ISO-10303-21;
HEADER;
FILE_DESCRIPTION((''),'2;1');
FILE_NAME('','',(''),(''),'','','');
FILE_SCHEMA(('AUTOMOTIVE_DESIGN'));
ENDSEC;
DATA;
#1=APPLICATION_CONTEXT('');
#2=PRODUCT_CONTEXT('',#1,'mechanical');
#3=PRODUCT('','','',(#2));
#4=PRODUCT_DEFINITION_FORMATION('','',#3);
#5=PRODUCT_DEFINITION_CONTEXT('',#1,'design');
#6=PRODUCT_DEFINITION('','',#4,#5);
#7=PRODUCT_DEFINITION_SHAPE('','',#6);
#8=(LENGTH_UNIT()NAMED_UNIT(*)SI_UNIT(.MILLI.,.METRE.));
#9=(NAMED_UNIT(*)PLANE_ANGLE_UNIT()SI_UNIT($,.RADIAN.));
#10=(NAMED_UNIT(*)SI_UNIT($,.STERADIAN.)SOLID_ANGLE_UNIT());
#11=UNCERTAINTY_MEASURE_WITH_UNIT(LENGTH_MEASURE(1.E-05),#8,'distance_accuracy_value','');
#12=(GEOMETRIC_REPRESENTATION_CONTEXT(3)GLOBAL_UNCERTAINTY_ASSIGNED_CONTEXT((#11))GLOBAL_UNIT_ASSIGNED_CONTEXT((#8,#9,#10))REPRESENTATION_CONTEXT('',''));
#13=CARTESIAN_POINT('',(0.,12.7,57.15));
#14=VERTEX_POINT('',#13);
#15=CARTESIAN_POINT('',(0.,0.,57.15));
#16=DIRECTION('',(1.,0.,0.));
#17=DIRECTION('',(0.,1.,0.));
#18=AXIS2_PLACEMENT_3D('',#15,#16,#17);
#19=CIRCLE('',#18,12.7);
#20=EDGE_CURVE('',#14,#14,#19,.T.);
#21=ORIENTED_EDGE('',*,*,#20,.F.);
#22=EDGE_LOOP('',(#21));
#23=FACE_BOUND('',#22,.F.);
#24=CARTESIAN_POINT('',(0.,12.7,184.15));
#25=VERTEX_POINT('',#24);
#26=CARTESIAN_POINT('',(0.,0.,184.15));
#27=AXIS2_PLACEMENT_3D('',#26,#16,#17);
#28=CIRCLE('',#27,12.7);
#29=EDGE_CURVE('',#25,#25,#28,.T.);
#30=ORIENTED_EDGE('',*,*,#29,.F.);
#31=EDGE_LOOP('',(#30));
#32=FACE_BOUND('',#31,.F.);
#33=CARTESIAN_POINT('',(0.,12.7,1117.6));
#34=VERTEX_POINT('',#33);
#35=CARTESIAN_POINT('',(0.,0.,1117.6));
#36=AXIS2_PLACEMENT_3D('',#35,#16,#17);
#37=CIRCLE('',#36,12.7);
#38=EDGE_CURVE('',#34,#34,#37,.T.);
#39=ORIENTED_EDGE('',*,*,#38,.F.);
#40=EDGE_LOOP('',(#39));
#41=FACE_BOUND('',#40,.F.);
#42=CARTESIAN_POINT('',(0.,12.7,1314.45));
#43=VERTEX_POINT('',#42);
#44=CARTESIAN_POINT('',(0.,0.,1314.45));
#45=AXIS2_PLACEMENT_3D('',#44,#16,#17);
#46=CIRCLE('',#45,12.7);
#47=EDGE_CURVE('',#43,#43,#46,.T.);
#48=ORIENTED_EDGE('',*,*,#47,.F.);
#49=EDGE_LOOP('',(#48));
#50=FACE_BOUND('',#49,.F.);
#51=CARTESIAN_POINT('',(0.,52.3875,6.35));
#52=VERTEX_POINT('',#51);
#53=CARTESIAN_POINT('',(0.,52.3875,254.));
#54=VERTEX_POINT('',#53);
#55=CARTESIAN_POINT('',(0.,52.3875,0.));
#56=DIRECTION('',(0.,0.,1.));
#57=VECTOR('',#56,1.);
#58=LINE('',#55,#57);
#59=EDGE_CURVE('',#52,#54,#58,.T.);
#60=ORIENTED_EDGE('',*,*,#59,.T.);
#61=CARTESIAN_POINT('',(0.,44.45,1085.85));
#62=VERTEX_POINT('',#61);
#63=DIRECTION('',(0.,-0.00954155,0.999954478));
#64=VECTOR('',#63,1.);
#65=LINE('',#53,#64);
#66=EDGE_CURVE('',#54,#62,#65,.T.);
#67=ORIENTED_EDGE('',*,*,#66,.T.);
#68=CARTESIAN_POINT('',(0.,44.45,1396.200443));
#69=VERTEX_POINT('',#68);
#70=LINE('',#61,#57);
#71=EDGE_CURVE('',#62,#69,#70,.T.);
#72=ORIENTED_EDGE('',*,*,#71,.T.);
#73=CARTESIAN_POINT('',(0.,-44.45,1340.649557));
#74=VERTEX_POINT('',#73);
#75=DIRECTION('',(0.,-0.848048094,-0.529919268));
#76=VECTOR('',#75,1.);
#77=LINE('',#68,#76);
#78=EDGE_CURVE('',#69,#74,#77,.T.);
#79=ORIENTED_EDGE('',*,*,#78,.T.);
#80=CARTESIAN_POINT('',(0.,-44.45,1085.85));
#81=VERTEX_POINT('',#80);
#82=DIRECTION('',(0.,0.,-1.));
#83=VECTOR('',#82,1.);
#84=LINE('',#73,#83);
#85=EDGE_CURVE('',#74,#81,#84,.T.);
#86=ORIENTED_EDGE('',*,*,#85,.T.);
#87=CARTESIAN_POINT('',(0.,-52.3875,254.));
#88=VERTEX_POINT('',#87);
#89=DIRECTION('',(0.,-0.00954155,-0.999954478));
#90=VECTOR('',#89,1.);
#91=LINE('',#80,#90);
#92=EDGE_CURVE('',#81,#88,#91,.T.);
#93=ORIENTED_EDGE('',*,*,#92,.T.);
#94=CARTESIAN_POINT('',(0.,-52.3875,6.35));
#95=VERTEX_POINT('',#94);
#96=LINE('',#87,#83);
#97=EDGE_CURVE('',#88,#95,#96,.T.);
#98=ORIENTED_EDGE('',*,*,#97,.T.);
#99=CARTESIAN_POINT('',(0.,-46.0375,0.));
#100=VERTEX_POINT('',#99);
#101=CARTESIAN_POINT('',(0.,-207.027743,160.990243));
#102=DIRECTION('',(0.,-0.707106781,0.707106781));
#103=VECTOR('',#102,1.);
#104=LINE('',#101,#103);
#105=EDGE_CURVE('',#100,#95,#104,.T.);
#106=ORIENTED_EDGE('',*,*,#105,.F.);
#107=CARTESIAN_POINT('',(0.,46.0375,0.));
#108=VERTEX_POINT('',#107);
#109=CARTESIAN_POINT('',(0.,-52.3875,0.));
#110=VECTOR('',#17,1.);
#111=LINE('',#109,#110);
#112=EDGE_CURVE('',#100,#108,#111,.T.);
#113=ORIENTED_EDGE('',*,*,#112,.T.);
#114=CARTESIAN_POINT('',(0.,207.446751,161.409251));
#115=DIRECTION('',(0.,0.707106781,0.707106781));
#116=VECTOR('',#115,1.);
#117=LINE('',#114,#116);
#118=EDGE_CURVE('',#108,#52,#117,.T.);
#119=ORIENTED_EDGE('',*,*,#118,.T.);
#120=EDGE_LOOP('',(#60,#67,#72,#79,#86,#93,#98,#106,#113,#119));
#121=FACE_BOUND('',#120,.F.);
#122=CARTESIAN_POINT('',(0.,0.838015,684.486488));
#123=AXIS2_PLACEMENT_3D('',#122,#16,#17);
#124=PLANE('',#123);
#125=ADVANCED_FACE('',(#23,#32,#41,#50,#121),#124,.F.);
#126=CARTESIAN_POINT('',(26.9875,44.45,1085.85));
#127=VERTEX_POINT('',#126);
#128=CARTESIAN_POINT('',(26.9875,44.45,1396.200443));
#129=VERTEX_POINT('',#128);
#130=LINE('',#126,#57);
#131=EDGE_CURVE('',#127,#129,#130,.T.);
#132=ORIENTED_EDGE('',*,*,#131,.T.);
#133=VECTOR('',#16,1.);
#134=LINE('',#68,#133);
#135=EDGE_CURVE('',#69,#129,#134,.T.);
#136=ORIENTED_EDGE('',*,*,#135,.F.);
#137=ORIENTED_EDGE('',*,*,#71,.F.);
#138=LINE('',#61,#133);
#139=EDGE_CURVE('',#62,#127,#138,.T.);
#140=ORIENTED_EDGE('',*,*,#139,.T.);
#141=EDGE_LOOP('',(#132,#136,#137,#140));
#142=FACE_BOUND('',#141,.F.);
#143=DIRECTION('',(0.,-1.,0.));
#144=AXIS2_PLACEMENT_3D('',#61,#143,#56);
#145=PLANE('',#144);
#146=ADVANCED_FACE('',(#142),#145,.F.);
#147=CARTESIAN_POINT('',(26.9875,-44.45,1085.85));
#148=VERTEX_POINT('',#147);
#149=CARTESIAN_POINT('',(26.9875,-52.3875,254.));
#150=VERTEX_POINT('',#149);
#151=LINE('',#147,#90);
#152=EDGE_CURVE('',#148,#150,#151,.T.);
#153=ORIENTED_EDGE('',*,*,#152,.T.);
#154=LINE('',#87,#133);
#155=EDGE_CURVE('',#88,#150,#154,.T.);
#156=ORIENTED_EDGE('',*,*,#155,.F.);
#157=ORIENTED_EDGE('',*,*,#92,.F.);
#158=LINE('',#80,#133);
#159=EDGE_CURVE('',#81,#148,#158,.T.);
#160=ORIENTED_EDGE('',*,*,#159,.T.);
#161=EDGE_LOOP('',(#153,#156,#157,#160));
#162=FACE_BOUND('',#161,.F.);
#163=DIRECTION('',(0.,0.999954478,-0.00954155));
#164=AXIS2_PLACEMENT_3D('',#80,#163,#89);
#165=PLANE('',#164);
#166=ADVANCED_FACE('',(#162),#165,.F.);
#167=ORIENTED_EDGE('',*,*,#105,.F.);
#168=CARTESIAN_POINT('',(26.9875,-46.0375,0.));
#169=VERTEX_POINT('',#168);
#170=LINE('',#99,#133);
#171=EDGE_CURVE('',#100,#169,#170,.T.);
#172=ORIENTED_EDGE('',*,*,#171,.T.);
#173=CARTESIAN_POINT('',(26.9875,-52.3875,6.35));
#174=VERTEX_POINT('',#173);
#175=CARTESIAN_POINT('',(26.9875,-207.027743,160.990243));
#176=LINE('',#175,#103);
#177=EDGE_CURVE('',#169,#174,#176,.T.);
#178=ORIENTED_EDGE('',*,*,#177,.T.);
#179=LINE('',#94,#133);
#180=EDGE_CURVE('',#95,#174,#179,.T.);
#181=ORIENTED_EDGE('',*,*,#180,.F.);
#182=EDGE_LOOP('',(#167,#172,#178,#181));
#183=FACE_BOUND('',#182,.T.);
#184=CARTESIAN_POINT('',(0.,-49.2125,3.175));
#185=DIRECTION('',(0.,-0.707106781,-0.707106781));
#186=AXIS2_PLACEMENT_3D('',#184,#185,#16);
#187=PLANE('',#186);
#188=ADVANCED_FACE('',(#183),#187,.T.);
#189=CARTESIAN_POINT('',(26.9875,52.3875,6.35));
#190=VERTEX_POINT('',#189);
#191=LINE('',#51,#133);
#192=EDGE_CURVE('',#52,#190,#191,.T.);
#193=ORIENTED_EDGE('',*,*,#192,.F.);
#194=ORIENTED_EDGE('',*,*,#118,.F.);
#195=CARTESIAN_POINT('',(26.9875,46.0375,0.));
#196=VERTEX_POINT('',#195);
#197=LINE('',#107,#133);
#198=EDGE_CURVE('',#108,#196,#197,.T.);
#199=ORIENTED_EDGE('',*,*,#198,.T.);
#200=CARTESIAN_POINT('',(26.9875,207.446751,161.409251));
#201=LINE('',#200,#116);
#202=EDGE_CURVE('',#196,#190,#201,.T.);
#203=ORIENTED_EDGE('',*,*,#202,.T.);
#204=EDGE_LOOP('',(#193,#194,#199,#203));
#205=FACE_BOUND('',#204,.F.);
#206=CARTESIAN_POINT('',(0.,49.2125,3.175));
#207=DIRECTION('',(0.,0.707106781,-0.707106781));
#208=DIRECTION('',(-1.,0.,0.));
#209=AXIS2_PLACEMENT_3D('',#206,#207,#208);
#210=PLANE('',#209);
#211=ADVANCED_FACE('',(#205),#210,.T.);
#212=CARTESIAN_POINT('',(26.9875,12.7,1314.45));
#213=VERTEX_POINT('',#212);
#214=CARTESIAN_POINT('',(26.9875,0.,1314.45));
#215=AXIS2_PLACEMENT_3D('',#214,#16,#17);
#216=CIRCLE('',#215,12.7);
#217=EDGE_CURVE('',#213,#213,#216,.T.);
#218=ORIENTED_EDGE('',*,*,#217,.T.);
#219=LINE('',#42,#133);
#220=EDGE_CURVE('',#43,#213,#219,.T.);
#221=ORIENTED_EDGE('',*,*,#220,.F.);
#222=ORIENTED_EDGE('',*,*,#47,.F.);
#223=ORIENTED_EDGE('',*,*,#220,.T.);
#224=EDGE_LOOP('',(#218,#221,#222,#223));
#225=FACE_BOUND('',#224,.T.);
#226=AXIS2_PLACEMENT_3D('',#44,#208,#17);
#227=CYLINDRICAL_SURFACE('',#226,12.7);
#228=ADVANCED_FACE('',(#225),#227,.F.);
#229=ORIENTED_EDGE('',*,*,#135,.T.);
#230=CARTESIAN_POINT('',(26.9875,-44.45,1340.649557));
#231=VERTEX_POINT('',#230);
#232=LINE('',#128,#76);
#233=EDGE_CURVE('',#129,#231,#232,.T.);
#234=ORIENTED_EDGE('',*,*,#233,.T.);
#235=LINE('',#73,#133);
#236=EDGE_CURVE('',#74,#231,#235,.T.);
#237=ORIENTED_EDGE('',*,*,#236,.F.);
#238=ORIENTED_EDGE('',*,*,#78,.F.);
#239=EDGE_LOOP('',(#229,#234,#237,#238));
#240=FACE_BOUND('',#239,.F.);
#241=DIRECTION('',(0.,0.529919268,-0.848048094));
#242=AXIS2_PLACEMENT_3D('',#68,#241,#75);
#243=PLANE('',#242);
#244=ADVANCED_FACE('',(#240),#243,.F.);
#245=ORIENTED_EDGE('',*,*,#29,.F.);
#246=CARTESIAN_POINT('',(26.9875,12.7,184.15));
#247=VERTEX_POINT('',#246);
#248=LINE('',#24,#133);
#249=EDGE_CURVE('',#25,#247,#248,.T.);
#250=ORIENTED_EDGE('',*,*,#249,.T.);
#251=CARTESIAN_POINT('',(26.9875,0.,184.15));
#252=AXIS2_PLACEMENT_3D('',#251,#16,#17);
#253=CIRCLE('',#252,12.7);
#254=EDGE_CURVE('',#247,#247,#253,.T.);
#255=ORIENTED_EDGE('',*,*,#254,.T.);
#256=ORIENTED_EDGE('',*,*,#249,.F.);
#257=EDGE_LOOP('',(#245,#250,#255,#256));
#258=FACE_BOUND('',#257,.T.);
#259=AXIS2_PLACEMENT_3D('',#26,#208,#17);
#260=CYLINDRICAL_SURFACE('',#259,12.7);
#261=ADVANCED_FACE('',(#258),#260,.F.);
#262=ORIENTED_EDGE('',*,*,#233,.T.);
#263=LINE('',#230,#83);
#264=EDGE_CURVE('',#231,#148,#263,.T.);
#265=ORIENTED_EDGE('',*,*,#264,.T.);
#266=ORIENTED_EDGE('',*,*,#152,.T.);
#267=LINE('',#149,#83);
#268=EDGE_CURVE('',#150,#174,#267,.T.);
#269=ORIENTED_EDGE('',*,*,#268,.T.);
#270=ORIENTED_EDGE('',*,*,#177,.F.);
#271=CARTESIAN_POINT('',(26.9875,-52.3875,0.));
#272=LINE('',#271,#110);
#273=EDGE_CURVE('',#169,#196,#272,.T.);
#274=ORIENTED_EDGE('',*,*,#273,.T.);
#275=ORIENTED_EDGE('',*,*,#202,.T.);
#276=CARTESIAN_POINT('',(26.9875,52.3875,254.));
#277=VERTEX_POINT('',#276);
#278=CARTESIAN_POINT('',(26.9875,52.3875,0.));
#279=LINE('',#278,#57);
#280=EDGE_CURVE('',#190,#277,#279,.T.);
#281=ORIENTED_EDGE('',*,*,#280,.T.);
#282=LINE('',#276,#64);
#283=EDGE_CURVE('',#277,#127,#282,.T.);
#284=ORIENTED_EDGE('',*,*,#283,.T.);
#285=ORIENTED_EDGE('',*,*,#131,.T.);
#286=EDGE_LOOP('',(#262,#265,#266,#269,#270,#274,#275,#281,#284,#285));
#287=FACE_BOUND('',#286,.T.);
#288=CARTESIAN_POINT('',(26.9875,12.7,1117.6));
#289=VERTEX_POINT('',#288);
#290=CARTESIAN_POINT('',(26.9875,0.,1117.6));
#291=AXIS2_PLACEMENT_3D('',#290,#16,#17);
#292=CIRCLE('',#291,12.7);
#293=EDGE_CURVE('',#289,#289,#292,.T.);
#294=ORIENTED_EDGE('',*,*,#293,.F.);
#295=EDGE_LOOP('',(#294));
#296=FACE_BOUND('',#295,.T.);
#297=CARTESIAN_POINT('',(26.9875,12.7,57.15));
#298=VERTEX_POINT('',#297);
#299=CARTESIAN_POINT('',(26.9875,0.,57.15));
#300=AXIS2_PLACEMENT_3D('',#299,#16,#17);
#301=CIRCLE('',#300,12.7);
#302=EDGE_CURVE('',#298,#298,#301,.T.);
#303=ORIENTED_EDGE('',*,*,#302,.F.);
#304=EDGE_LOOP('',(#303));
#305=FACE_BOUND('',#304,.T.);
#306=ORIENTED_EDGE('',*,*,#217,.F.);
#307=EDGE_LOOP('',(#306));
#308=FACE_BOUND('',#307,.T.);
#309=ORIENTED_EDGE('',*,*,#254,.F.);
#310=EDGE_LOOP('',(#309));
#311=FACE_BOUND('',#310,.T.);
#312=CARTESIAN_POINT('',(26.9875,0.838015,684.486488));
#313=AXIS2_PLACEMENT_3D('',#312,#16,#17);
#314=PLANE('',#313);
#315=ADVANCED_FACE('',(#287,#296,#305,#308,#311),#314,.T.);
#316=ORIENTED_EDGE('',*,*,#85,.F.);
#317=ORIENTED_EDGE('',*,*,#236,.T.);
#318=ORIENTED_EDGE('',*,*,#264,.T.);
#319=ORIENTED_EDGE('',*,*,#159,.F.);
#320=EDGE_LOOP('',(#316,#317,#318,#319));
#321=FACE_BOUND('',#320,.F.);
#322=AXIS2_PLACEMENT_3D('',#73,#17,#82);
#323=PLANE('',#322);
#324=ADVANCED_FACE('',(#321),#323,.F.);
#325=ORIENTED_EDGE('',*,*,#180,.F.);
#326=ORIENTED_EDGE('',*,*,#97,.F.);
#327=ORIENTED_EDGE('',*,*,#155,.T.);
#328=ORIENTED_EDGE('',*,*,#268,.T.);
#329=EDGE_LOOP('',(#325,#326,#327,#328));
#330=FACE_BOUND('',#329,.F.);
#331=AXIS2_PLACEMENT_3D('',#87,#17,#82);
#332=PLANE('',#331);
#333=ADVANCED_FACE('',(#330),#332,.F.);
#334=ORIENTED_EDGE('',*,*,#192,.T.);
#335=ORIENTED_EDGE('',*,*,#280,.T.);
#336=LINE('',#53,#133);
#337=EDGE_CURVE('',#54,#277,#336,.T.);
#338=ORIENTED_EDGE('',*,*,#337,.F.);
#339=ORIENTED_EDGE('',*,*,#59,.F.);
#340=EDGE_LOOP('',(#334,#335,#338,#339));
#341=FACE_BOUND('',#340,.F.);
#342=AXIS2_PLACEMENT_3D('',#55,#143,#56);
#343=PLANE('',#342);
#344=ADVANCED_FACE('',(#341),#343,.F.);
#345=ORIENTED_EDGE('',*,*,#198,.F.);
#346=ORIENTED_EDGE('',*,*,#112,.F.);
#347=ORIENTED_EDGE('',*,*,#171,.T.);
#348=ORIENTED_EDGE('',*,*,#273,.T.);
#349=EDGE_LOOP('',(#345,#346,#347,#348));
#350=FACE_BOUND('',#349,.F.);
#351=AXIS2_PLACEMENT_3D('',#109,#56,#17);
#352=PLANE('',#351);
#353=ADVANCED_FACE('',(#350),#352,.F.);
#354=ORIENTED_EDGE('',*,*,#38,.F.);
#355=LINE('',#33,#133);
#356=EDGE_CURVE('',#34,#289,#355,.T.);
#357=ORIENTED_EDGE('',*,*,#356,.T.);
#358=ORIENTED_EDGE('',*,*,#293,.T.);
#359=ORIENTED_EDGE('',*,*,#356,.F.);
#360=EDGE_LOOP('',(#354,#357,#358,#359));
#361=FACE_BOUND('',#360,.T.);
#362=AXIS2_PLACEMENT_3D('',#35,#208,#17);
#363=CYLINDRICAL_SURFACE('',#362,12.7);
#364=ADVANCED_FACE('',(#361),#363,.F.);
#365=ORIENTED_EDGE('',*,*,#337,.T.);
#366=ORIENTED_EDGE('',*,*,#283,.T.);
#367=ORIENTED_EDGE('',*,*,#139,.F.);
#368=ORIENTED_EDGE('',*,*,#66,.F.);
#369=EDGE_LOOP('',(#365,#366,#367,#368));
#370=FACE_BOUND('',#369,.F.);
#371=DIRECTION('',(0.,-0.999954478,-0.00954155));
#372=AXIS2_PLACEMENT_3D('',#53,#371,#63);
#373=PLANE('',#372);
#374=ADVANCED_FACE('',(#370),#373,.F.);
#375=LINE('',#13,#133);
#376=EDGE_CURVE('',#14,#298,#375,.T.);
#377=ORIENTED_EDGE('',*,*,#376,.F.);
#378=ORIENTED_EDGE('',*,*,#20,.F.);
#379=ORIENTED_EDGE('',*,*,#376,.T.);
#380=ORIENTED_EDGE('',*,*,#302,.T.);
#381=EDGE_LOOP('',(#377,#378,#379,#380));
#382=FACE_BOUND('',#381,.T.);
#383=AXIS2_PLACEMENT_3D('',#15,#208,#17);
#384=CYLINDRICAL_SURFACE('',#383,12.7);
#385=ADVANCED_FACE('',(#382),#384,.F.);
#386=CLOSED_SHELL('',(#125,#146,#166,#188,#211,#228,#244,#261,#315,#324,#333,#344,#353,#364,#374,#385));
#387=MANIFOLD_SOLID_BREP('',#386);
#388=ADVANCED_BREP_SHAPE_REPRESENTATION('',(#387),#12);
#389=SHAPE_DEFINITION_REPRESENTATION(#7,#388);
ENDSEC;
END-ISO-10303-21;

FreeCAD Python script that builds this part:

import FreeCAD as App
import Part
import Sketcher
Q = App.Units.Quantity


def edges_at(feature, points):
    """Names of the edges that pass closest to the given points."""
    edges = feature.Shape.Edges
    near = lambda p: min(range(len(edges)), key=lambda i: edges[i].distToShape(Part.Vertex(*p))[0])
    return sorted({f"Edge{near(p) + 1}" for p in points})

doc = App.newDocument("Part")
params = doc.addObject("Spreadsheet::Sheet", "Params")
for row, (alias, value) in enumerate([
    ("sketch1_diameter", "1 in"),
    ("sketch1_height", "10 in"),
    ("sketch1_width", "4.125 in"),
    ("pad1_length", "1.0625 in"),
    ("chamfer_size", "0.25 in"),
], start=1):
    params.set(f"A{row}", alias)
    params.set(f"B{row}", "=" + value)
    params.setAlias(f"B{row}", alias)

body = doc.addObject("PartDesign::Body", "Body")

sketch1 = body.newObject("Sketcher::SketchObject", "Sketch")
sketch1.AttachmentSupport = (doc.getObject("YZ_Plane"), [""])
sketch1.MapMode = "FlatFace"
sketch1.addGeometry([
    Part.LineSegment(App.Vector(-52.3875, 0, 0), App.Vector(52.3875, 0, 0)),
    Part.LineSegment(App.Vector(52.3875, 0, 0), App.Vector(52.3875, 254, 0)),
    Part.LineSegment(App.Vector(52.3875, 254, 0), App.Vector(44.45, 1085.85, 0)),
    Part.LineSegment(App.Vector(44.45, 1085.85, 0), App.Vector(44.45, 1396.200443, 0)),
    Part.LineSegment(App.Vector(44.45, 1396.200443, 0), App.Vector(-44.45, 1340.649557, 0)),
    Part.LineSegment(App.Vector(-44.45, 1340.649557, 0), App.Vector(-44.45, 1085.85, 0)),
    Part.LineSegment(App.Vector(-44.45, 1085.85, 0), App.Vector(-52.3875, 254, 0)),
    Part.LineSegment(App.Vector(-52.3875, 254, 0), App.Vector(-52.3875, 0, 0)),
    Part.Circle(App.Vector(0, 57.15, 0), App.Vector(0, 0, 1), 12.7),
    Part.Circle(App.Vector(0, 184.15, 0), App.Vector(0, 0, 1), 12.7),
    Part.Circle(App.Vector(0, 1117.6, 0), App.Vector(0, 0, 1), 12.7),
    Part.Circle(App.Vector(0, 1314.45, 0), App.Vector(0, 0, 1), 12.7),
], False)
sketch1.addConstraint([
    Sketcher.Constraint("Coincident", 0, 2, 1, 1),
    Sketcher.Constraint("Coincident", 1, 2, 2, 1),
    Sketcher.Constraint("Coincident", 2, 2, 3, 1),
    Sketcher.Constraint("Coincident", 3, 2, 4, 1),
    Sketcher.Constraint("Coincident", 4, 2, 5, 1),
    Sketcher.Constraint("Coincident", 5, 2, 6, 1),
    Sketcher.Constraint("Coincident", 6, 2, 7, 1),
    Sketcher.Constraint("Coincident", 7, 2, 0, 1),
    Sketcher.Constraint("Horizontal", 0),
    Sketcher.Constraint("Vertical", 1),
    Sketcher.Constraint("Vertical", 3),
    Sketcher.Constraint("Vertical", 5),
    Sketcher.Constraint("Vertical", 7),
    Sketcher.Constraint("Equal", 8, 9),
    Sketcher.Constraint("Equal", 9, 10),
    Sketcher.Constraint("Equal", 10, 11),
    Sketcher.Constraint("Symmetric", 0, 2, 7, 2, -1, 1),
    Sketcher.Constraint("Symmetric", 2, 2, 5, 2, -2),
    Sketcher.Constraint("PointOnObject", 8, 3, -2),
    Sketcher.Constraint("PointOnObject", 9, 3, -2),
    Sketcher.Constraint("PointOnObject", 10, 3, -2),
    Sketcher.Constraint("PointOnObject", 11, 3, -2),
    Sketcher.Constraint("Horizontal", 1, 2, 6, 2),
    Sketcher.Constraint("Diameter", 8, Q("1 in")),
    Sketcher.Constraint("DistanceY", 1, 1, 1, 2, Q("10 in")),
    Sketcher.Constraint("DistanceY", -1, 1, 10, 3, Q("44 in")),
    Sketcher.Constraint("Angle", 4, Q("-148 deg")),
    Sketcher.Constraint("DistanceY", 8, 3, 9, 3, Q("5 in")),
    Sketcher.Constraint("DistanceY", 2, 2, 11, 3, Q("9 in")),
    Sketcher.Constraint("DistanceY", 9, 3, 11, 3, Q("44.5 in")),
    Sketcher.Constraint("DistanceX", 4, 2, 3, 2, Q("3.5 in")),
    Sketcher.Constraint("DistanceX", 0, 1, 0, 2, Q("4.125 in")),
    Sketcher.Constraint("DistanceY", -1, 1, 8, 3, Q("2.25 in")),
    Sketcher.Constraint("DistanceY", 3, 1, 3, 2, Q("310.350443 mm")),
])
sketch1.setExpression("Constraints[23]", "Params.sketch1_diameter")
sketch1.setExpression("Constraints[24]", "Params.sketch1_height")
sketch1.setExpression("Constraints[31]", "Params.sketch1_width")
pad1 = body.newObject("PartDesign::Pad", "Pad")
pad1.Profile = sketch1
pad1.setExpression("Length", "Params.pad1_length")
doc.recompute()

chamfer = body.newObject("PartDesign::Chamfer", "Chamfer")
chamfer.Base = (pad1, edges_at(pad1, [(13.494, -52.388, 0), (13.494, 52.388, 0)]))
chamfer.setExpression("Size", "Params.chamfer_size")

doc.recompute()
